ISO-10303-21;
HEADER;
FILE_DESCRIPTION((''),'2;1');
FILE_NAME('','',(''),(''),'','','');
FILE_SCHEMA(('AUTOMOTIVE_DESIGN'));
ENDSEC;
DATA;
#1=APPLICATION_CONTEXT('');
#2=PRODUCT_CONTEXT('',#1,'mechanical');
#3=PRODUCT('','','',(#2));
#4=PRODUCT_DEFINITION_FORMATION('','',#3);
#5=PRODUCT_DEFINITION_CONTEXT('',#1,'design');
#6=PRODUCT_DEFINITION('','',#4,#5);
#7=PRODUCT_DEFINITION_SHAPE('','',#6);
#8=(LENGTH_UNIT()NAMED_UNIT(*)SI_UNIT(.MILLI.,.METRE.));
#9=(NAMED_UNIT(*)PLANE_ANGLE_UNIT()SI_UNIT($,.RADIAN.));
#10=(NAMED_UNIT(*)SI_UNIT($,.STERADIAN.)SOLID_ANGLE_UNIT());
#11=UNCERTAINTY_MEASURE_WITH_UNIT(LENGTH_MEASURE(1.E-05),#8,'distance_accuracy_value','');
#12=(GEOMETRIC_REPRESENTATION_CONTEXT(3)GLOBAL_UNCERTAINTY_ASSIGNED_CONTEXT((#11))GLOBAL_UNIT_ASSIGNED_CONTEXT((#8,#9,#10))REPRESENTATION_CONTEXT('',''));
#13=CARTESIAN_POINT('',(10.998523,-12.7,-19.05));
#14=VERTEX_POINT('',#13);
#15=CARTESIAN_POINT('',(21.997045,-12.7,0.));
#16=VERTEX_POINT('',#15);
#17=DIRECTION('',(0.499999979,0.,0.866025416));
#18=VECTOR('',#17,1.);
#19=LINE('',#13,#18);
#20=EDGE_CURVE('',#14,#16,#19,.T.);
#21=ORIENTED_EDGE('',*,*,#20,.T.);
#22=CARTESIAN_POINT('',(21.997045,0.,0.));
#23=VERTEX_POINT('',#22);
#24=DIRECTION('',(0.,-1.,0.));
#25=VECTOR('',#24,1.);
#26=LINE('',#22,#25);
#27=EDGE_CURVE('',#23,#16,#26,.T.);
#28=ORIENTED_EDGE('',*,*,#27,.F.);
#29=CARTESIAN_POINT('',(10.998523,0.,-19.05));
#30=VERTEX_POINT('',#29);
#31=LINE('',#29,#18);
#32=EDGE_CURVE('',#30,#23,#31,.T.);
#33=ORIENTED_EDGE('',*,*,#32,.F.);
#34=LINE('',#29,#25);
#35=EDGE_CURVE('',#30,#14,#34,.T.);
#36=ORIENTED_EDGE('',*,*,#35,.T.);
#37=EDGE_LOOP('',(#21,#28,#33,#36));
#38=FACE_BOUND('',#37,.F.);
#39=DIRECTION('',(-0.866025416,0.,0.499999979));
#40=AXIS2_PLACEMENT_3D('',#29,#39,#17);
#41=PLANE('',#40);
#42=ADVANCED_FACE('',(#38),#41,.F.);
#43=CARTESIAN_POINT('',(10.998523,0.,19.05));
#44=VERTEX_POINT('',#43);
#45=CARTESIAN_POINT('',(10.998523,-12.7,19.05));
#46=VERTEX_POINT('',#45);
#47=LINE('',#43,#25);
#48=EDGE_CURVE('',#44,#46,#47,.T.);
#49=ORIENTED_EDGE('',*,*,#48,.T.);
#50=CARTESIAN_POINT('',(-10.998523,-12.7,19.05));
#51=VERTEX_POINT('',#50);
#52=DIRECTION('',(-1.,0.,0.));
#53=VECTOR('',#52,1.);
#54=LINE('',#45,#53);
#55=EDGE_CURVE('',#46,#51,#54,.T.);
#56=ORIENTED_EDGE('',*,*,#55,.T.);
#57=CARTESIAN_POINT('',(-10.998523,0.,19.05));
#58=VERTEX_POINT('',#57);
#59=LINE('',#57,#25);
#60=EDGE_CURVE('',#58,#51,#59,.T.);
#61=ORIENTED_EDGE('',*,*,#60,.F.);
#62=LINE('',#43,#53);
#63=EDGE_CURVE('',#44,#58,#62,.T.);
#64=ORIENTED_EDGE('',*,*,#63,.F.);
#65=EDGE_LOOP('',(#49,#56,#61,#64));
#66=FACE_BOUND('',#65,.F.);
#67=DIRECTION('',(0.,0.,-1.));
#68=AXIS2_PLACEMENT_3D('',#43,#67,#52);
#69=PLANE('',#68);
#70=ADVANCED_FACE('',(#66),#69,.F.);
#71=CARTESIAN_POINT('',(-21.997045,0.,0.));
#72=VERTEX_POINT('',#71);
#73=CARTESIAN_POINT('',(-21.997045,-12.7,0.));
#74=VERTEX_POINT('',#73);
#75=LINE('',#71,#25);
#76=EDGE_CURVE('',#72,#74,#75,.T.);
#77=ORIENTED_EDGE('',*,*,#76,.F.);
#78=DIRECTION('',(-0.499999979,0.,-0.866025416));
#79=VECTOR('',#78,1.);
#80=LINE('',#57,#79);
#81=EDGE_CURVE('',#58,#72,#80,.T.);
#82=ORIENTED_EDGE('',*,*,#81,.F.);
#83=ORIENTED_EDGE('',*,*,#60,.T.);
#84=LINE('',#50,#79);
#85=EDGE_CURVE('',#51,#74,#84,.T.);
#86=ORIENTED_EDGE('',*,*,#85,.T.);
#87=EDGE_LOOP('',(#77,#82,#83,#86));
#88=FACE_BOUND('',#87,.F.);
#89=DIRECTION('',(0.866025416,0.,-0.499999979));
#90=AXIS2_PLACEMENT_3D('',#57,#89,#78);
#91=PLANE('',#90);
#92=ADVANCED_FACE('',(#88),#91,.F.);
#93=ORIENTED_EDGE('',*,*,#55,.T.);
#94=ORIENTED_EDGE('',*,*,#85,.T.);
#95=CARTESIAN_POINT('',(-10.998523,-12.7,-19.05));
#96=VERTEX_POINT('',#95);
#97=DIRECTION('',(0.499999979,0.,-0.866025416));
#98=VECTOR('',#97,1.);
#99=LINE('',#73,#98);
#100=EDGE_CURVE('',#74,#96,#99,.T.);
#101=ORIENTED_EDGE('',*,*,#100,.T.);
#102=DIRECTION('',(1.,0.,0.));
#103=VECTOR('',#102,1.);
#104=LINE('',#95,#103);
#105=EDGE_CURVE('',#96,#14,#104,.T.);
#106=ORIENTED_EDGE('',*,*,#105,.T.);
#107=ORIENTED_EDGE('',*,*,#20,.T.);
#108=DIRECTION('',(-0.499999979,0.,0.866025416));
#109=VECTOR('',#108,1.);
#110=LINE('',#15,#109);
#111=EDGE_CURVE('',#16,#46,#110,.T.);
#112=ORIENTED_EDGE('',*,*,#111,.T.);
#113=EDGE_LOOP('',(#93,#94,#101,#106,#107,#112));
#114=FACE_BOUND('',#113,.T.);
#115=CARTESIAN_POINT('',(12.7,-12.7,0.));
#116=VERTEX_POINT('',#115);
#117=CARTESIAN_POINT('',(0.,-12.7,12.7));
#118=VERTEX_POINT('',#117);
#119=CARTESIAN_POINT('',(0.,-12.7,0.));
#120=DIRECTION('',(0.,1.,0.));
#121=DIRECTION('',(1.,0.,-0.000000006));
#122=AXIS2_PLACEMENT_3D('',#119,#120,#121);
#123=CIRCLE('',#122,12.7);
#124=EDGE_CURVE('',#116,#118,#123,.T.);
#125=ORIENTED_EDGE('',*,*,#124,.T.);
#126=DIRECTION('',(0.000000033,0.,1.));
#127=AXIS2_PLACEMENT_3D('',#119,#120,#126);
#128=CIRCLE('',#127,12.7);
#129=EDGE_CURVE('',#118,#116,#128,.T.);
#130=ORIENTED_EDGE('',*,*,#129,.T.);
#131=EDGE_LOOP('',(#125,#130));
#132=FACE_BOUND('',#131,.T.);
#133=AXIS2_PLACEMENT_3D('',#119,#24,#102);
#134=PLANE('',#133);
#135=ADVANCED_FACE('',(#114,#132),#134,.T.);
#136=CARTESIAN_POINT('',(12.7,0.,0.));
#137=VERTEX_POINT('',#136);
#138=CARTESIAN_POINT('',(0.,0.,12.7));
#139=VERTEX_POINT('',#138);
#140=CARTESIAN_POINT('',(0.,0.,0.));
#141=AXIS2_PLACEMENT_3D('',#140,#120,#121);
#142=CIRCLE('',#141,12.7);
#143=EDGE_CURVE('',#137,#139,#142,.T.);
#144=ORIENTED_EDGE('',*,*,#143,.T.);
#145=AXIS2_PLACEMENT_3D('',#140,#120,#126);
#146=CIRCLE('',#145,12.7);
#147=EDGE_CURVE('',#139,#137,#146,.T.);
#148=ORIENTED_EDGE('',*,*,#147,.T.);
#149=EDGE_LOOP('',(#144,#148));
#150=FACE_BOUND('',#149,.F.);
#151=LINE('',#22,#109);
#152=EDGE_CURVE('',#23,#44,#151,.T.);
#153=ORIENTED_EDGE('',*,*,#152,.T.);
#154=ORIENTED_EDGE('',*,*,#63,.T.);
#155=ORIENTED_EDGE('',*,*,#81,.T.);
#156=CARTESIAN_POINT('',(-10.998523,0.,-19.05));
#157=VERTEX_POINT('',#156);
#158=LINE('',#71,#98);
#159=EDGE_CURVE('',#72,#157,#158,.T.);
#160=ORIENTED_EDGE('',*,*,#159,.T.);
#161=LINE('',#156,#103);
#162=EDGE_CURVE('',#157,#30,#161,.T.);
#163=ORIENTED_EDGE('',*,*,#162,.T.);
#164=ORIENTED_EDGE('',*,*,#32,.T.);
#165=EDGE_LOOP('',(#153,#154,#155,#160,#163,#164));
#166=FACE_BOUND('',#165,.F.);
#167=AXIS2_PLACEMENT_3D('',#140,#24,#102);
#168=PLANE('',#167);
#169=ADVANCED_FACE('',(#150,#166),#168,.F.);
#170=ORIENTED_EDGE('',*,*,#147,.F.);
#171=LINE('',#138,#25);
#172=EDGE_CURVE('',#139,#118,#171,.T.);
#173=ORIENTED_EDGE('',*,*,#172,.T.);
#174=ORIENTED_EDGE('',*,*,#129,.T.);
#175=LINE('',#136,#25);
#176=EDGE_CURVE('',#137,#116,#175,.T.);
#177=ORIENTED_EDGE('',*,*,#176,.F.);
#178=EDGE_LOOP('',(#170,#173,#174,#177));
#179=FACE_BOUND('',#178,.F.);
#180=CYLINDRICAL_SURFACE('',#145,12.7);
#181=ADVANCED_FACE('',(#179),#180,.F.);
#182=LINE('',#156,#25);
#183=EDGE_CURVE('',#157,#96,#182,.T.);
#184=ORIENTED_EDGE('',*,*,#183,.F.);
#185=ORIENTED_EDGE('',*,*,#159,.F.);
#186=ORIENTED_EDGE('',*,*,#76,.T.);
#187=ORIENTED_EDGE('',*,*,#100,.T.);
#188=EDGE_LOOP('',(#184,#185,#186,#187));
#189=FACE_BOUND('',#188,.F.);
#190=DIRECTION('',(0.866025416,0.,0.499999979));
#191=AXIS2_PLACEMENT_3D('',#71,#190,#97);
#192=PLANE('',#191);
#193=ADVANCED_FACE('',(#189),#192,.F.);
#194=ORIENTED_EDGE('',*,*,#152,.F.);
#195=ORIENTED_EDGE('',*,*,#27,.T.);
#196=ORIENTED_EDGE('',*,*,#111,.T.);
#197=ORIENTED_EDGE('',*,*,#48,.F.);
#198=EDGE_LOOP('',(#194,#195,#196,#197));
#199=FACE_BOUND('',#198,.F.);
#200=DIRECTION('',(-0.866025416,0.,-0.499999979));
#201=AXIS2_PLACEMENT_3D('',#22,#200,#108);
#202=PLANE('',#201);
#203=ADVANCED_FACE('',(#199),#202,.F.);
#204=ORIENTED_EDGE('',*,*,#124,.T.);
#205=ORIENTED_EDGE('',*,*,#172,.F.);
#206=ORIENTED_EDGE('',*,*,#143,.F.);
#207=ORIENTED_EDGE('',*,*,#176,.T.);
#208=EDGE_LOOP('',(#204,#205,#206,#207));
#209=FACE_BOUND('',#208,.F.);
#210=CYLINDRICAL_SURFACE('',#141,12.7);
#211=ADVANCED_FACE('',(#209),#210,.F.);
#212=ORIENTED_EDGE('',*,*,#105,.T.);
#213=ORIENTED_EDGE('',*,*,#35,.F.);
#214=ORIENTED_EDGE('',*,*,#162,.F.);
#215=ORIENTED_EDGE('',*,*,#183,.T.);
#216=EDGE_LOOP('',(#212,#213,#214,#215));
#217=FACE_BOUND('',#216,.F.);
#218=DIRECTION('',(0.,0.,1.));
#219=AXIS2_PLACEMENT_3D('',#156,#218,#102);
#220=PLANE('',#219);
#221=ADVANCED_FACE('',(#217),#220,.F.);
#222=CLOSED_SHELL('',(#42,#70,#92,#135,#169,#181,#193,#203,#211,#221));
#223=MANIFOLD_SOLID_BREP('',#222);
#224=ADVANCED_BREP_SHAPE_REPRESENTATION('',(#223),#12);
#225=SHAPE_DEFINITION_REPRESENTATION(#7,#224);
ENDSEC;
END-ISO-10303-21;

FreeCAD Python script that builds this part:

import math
import FreeCAD as App
import Part
import Sketcher
from FreeCAD import Vector
Q = App.Units.Quantity


def add_polygon(sketch, points):
    """Adds a closed chain of lines whose ends are joined by coincident constraints."""
    first, n = sketch.GeometryCount, len(points)
    for a, b in zip(points, points[1:] + points[:1]):
        sketch.addGeometry(Part.LineSegment(App.Vector(*a, 0), App.Vector(*b, 0)), False)
    for i in range(n):
        sketch.addConstraint(Sketcher.Constraint("Coincident", first + i, 2, first + (i + 1) % n, 1))

doc = App.newDocument("Part")
params = doc.addObject("Spreadsheet::Sheet", "Params")
for row, (alias, value) in enumerate([
    ("sketch1_radius", "0.5 in"),
    ("pad1_length", "0.5 in"),
], start=1):
    params.set(f"A{row}", alias)
    params.set(f"B{row}", "=" + value)
    params.setAlias(f"B{row}", alias)

body = doc.addObject("PartDesign::Body", "Body")

# Sketch on XZ plane
sketch1 = body.newObject("Sketcher::SketchObject", "Sketch")
sketch1.AttachmentSupport = (doc.getObject("XZ_Plane"), [""])
sketch1.MapMode = "FlatFace"
add_polygon(sketch1, [(11, 19), (-11, 19), (-22, 0), (-11, -19), (11, -19), (22, 0)])  # lines 0-5
sketch1.addGeometry(Part.ArcOfCircle(Part.Circle(Vector(0, 0, 0), Vector(0, 0, 1), 13), math.radians(0), math.radians(90)), False)  # 6
sketch1.addGeometry(Part.ArcOfCircle(Part.Circle(Vector(0, 0, 0), Vector(0, 0, 1), 13), math.radians(90), math.radians(360)), False)  # 7
sketch1.addConstraint(Sketcher.Constraint("Tangent", 6, 1, 7, 2))
sketch1.addConstraint(Sketcher.Constraint("Coincident", 7, 1, 6, 2))
sketch1.addConstraint(Sketcher.Constraint("Horizontal", 0))
sketch1.addConstraint(Sketcher.Constraint("Horizontal", 3))
sketch1.addConstraint(Sketcher.Constraint("Coincident", 6, 3, -1, 1))
sketch1.addConstraint(Sketcher.Constraint("Symmetric", 0, 2, 3, 2, -1, 1))
sketch1.addConstraint(Sketcher.Constraint("Symmetric", 1, 2, 4, 2, -1, 1))
sketch1.addConstraint(Sketcher.Constraint("PointOnObject", 1, 2, -1))
sketch1.addConstraint(Sketcher.Constraint("PointOnObject", 6, 1, -1))
sketch1.addConstraint(Sketcher.Constraint("PointOnObject", 7, 1, -2))
sketch1.addConstraint(Sketcher.Constraint("Parallel", 2, 5))
sketch1.addConstraint(Sketcher.Constraint("Vertical", 0, 2, 2, 2))
sketch1.addConstraint(Sketcher.Constraint("Radius", 6, Q("0.5 in")))
sketch1.addConstraint(Sketcher.Constraint("Angle", 1, Q("-119.999999 deg")))
sketch1.addConstraint(Sketcher.Constraint("DistanceY", 2, 2, 0, 2, Q("1.5 in")))
sketch1.addConstraint(Sketcher.Constraint("DistanceX", 0, 2, 0, 1, 21.997046))
sketch1.setExpression("Constraints[18]", "Params.sketch1_radius")
pad1 = body.newObject("PartDesign::Pad", "Pad")
pad1.Profile = sketch1
pad1.setExpression("Length", "Params.pad1_length")

doc.recompute()
